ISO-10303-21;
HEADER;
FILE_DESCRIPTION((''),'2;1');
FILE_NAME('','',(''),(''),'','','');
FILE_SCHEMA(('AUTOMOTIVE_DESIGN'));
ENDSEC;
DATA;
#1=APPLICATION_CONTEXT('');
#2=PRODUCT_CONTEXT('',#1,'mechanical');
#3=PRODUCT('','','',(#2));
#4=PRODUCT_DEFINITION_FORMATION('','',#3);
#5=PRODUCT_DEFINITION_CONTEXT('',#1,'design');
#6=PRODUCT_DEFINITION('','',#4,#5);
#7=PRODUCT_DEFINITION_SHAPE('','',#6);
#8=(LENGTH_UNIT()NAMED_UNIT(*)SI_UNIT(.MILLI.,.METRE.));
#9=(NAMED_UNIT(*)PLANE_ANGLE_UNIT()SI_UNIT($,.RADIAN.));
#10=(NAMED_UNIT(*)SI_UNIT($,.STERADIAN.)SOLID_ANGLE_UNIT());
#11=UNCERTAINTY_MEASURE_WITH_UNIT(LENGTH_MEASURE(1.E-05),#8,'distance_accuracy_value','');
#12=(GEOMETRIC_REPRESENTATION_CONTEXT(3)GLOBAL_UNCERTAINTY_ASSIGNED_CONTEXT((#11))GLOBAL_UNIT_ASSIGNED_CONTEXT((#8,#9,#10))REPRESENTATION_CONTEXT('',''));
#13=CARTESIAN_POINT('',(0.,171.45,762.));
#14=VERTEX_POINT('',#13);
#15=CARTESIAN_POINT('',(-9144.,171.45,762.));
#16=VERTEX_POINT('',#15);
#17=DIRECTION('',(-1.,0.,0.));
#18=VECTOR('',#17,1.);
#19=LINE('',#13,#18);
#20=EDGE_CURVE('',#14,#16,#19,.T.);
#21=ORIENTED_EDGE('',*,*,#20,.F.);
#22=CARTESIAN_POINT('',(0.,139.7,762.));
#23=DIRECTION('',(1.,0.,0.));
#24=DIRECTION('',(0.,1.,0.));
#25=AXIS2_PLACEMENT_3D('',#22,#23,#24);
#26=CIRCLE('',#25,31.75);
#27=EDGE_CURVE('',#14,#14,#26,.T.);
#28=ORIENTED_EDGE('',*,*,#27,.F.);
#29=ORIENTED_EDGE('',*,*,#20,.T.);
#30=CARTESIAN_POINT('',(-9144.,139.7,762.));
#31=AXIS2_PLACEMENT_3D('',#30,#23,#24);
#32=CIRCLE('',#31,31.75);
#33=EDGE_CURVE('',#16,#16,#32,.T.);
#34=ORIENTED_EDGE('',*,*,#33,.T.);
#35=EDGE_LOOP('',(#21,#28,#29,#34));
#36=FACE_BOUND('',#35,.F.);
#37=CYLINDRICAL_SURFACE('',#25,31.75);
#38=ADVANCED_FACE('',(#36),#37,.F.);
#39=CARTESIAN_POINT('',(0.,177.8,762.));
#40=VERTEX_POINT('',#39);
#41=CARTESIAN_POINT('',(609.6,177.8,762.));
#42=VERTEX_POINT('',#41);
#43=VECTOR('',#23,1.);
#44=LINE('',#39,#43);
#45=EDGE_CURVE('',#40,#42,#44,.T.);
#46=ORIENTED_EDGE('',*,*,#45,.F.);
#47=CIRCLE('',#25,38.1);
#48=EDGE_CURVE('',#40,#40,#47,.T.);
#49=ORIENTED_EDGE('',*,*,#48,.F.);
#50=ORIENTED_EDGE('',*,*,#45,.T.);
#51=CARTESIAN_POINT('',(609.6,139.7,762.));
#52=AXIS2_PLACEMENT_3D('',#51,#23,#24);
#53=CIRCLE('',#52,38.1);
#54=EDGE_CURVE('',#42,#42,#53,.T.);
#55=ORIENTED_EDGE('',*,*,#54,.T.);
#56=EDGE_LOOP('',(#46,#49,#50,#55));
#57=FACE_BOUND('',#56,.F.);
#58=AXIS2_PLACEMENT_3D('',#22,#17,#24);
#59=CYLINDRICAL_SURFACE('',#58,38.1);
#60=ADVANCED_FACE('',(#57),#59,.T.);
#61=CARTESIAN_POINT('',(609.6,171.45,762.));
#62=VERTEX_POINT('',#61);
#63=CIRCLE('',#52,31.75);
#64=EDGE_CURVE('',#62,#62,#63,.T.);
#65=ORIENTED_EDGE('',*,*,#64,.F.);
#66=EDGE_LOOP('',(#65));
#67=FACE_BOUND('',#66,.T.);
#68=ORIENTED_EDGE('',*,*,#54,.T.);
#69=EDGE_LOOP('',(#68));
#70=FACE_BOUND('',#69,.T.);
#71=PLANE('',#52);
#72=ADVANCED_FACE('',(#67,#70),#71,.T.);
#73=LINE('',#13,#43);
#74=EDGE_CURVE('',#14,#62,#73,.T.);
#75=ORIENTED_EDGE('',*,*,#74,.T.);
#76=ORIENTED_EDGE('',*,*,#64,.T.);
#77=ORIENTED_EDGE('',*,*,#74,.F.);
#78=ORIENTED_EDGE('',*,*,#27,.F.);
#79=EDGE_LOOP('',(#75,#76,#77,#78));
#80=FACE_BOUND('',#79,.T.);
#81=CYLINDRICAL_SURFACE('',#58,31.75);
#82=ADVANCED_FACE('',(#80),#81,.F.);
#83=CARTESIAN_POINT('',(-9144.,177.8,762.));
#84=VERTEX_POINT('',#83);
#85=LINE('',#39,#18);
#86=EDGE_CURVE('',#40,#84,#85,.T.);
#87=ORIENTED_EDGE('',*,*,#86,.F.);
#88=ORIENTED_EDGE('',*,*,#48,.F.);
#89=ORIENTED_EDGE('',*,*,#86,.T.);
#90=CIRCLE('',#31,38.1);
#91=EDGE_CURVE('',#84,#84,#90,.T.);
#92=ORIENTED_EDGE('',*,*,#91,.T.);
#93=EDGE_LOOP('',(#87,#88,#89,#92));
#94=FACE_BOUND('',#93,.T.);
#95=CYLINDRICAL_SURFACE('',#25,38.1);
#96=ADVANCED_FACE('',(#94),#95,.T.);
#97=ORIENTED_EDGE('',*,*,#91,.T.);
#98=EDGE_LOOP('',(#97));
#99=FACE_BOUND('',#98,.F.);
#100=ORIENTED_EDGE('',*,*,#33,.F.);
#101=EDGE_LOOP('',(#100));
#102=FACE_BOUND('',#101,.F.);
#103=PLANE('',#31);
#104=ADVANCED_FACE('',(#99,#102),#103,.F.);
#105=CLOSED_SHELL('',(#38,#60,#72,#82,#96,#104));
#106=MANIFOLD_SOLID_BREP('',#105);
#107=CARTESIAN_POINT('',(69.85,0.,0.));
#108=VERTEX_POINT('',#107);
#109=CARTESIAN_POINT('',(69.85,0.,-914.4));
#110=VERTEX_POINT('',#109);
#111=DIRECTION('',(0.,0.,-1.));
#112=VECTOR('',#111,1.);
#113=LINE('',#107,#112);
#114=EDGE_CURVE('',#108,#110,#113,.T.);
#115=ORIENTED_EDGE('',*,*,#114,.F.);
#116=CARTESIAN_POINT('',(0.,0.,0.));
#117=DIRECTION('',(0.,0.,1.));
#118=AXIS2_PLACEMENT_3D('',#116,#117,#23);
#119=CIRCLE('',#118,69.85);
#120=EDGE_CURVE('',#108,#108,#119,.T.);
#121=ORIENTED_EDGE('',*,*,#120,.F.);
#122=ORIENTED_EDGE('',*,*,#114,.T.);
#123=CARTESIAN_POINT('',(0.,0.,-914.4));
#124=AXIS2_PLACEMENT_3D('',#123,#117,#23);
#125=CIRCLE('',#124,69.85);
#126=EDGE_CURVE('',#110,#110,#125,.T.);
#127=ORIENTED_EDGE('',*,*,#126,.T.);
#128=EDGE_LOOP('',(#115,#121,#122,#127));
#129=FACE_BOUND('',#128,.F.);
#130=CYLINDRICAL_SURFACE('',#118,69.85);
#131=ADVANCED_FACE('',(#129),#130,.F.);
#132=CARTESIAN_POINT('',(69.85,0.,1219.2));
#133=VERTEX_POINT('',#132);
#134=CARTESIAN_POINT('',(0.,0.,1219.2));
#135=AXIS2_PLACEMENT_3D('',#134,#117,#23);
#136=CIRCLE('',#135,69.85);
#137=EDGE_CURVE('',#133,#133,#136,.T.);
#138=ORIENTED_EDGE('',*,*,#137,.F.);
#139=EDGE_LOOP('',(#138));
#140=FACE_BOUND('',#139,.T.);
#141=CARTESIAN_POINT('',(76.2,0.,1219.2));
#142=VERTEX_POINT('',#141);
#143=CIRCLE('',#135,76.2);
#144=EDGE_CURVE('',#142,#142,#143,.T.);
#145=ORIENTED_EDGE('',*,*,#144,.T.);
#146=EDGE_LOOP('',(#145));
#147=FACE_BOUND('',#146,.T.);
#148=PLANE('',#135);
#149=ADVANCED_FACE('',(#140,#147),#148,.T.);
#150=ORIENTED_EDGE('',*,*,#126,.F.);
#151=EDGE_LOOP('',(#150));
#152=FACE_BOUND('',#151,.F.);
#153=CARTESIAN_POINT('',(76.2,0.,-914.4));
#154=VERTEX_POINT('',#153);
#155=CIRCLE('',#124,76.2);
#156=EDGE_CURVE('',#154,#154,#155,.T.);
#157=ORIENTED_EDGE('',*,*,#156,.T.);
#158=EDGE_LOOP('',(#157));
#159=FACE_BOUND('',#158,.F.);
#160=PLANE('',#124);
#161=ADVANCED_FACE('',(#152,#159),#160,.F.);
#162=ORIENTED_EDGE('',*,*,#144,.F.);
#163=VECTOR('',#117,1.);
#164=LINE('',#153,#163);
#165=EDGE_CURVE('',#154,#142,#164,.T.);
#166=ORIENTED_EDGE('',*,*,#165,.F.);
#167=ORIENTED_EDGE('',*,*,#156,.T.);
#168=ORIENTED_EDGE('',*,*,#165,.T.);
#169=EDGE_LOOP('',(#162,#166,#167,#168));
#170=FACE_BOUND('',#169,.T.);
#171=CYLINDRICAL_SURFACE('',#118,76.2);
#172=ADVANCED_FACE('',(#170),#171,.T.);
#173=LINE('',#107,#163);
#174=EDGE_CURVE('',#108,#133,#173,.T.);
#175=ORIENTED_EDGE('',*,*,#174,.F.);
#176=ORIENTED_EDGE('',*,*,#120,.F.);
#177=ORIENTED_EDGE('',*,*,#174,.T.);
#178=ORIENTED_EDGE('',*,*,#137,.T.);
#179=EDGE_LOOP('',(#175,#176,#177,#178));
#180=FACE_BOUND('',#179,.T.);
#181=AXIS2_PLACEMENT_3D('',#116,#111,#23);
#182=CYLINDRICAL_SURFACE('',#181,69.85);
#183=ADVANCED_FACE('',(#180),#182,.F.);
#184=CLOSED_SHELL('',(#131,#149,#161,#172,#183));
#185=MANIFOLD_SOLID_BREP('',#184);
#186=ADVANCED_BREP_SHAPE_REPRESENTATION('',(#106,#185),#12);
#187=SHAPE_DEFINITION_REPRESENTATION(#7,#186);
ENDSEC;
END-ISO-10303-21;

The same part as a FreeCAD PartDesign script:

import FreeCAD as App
import Part
import Sketcher

V = App.Vector
Q = App.Units.Quantity

doc = App.newDocument("Part")
params = doc.addObject("Spreadsheet::Sheet", "Params")
for row, (alias, value) in enumerate([
    ("sketch1_diameter", "6 in"),
    ("sketch1_diameter2", "5.5 in"),
    ("pad1_length", "48 in"),
    ("pad1_length2", "36 in"),
    ("sketch2_diameter", "3 in"),
    ("sketch2_diameter2", "2.5 in"),
    ("pad2_length", "360 in"),
    ("pad2_length2", "24 in"),
], start=1):
    params.set(f"A{row}", alias)
    params.set(f"B{row}", "=" + value)
    params.setAlias(f"B{row}", alias)

body = doc.addObject("PartDesign::Body", "Body")

# Sketch on XY plane
sketch1 = doc.addObject("Sketcher::SketchObject", "Sketch")
body.addObject(sketch1)
sketch1.AttachmentSupport = (doc.XY_Plane, [""])
sketch1.MapMode = "FlatFace"
sketch1.addGeometry(Part.Circle(V(0, 0, 0), V(0, 0, 1), 76.2), False)
sketch1.addGeometry(Part.Circle(V(0, 0, 0), V(0, 0, 1), 69.85), False)
sketch1.addConstraint(Sketcher.Constraint("Coincident", 0, 3, -1, 1))
sketch1.addConstraint(Sketcher.Constraint("Coincident", 1, 3, -1, 1))
sketch1.addConstraint(Sketcher.Constraint("Diameter", 0, Q("6 in")))
sketch1.addConstraint(Sketcher.Constraint("Diameter", 1, Q("5.5 in")))
sketch1.setExpression("Constraints[2]", "Params.sketch1_diameter")
sketch1.setExpression("Constraints[3]", "Params.sketch1_diameter2")
pad1 = doc.addObject("PartDesign::Pad", "Pad")
body.addObject(pad1)
pad1.Profile = sketch1
pad1.Type = "TwoLengths"
pad1.setExpression("Length", "Params.pad1_length")
pad1.setExpression("Length2", "Params.pad1_length2")
body2 = doc.addObject("PartDesign::Body", "Body001")

# Sketch on YZ plane
sketch2 = doc.addObject("Sketcher::SketchObject", "Sketch001")
body2.addObject(sketch2)
sketch2.AttachmentSupport = (doc.getObject("YZ_Plane001"), [""])
sketch2.MapMode = "FlatFace"
sketch2.addGeometry(Part.Circle(V(139.7, 762, 0), V(0, 0, 1), 38.1), False)
sketch2.addGeometry(Part.Circle(V(139.7, 762, 0), V(0, 0, 1), 31.75), False)
sketch2.addConstraint(Sketcher.Constraint("Coincident", 1, 3, 0, 3))
sketch2.addConstraint(Sketcher.Constraint("Diameter", 0, Q("3 in")))
sketch2.addConstraint(Sketcher.Constraint("Diameter", 1, Q("2.5 in")))
sketch2.addConstraint(Sketcher.Constraint("DistanceY", -1, 1, 0, 3, Q("30 in")))
sketch2.addConstraint(Sketcher.Constraint("DistanceX", -1, 1, 0, 3, Q("5.5 in")))
sketch2.setExpression("Constraints[1]", "Params.sketch2_diameter")
sketch2.setExpression("Constraints[2]", "Params.sketch2_diameter2")
pad2 = doc.addObject("PartDesign::Pad", "Pad001")
body2.addObject(pad2)
pad2.Profile = sketch2
pad2.Type = "TwoLengths"
pad2.setExpression("Length", "Params.pad2_length")
pad2.setExpression("Length2", "Params.pad2_length2")
pad2.Reversed = True

doc.recompute()
